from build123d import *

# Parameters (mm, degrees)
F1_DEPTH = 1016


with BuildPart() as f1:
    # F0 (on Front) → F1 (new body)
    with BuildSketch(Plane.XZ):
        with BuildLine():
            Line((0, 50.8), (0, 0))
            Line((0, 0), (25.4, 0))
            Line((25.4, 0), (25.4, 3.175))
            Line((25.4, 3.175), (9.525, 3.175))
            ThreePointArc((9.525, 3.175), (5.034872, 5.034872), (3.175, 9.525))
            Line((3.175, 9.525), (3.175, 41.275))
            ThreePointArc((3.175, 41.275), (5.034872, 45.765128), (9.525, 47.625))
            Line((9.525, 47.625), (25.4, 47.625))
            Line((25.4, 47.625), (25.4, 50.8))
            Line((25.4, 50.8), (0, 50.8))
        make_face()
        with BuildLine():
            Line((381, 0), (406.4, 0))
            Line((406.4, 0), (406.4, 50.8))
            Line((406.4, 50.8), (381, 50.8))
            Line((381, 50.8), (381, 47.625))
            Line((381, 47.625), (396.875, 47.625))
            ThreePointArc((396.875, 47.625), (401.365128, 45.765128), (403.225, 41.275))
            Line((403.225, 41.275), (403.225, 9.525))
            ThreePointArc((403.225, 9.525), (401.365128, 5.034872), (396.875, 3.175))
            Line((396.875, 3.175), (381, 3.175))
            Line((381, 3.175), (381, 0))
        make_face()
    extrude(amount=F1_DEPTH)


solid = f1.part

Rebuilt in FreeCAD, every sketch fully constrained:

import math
import FreeCAD as App
import Part
import Sketcher

V = App.Vector
Q = App.Units.Quantity

doc = App.newDocument("Part")
body = doc.addObject("PartDesign::Body", "Body")
body.AllowCompound = True

# Sketch on XZ plane
sketch1 = doc.addObject("Sketcher::SketchObject", "Sketch")
body.addObject(sketch1)
sketch1.AttachmentSupport = (doc.XZ_Plane, [""])
sketch1.MapMode = "FlatFace"
sketch1.addGeometry([
    Part.LineSegment(V(0, 50.8, 0), V(0, 0, 0)),  # 0
    Part.LineSegment(V(0, 0, 0), V(25.4, 0, 0)),  # 1
    Part.LineSegment(V(25.4, 0, 0), V(25.4, 3.2, 0)),  # 2
    Part.LineSegment(V(25.4, 3.2, 0), V(9.5, 3.2, 0)),  # 3
    Part.ArcOfCircle(Part.Circle(V(9.5, 9.5, 0), V(0, 0, 1), 6.4), math.radians(-180), math.radians(-90)),  # 4
    Part.LineSegment(V(3.2, 9.5, 0), V(3.2, 41.3, 0)),  # 5
    Part.ArcOfCircle(Part.Circle(V(9.5, 41.3, 0), V(0, 0, 1), 6.4), math.radians(90), math.radians(180)),  # 6
    Part.LineSegment(V(9.5, 47.6, 0), V(25.4, 47.6, 0)),  # 7
    Part.LineSegment(V(25.4, 47.6, 0), V(25.4, 50.8, 0)),  # 8
    Part.LineSegment(V(25.4, 50.8, 0), V(0, 50.8, 0)),  # 9
    Part.LineSegment(V(381, 0, 0), V(406.4, 0, 0)),  # 10
    Part.LineSegment(V(406.4, 0, 0), V(406.4, 50.8, 0)),  # 11
    Part.LineSegment(V(406.4, 50.8, 0), V(381, 50.8, 0)),  # 12
    Part.LineSegment(V(381, 50.8, 0), V(381, 47.6, 0)),  # 13
    Part.LineSegment(V(381, 47.6, 0), V(396.9, 47.6, 0)),  # 14
    Part.ArcOfCircle(Part.Circle(V(396.9, 41.3, 0), V(0, 0, 1), 6.4), math.radians(0), math.radians(90)),  # 15
    Part.LineSegment(V(403.2, 41.3, 0), V(403.2, 9.5, 0)),  # 16
    Part.ArcOfCircle(Part.Circle(V(396.9, 9.5, 0), V(0, 0, 1), 6.4), math.radians(-90), math.radians(0)),  # 17
    Part.LineSegment(V(396.9, 3.2, 0), V(381, 3.2, 0)),  # 18
    Part.LineSegment(V(381, 3.2, 0), V(381, 0, 0)),  # 19
], False)
sketch1.addConstraint([
    Sketcher.Constraint("Coincident", 0, 2, 1, 1),
    Sketcher.Constraint("Coincident", 1, 2, 2, 1),
    Sketcher.Constraint("Coincident", 2, 2, 3, 1),
    Sketcher.Constraint("Tangent", 3, 2, 4, 2),
    Sketcher.Constraint("Tangent", 4, 1, 5, 1),
    Sketcher.Constraint("Tangent", 5, 2, 6, 2),
    Sketcher.Constraint("Tangent", 6, 1, 7, 1),
    Sketcher.Constraint("Coincident", 7, 2, 8, 1),
    Sketcher.Constraint("Coincident", 8, 2, 9, 1),
    Sketcher.Constraint("Coincident", 9, 2, 0, 1),
    Sketcher.Constraint("Coincident", 10, 2, 11, 1),
    Sketcher.Constraint("Coincident", 11, 2, 12, 1),
    Sketcher.Constraint("Coincident", 12, 2, 13, 1),
    Sketcher.Constraint("Coincident", 13, 2, 14, 1),
    Sketcher.Constraint("Tangent", 14, 2, 15, 2),
    Sketcher.Constraint("Tangent", 15, 1, 16, 1),
    Sketcher.Constraint("Tangent", 16, 2, 17, 2),
    Sketcher.Constraint("Tangent", 17, 1, 18, 1),
    Sketcher.Constraint("Coincident", 18, 2, 19, 1),
    Sketcher.Constraint("Coincident", 19, 2, 10, 1),
    Sketcher.Constraint("Vertical", 0),
    Sketcher.Constraint("Horizontal", 1),
    Sketcher.Constraint("Vertical", 2),
    Sketcher.Constraint("Horizontal", 3),
    Sketcher.Constraint("Vertical", 5),
    Sketcher.Constraint("Horizontal", 7),
    Sketcher.Constraint("Vertical", 8),
    Sketcher.Constraint("Horizontal", 9),
    Sketcher.Constraint("Horizontal", 10),
    Sketcher.Constraint("Vertical", 11),
    Sketcher.Constraint("Horizontal", 12),
    Sketcher.Constraint("Vertical", 13),
    Sketcher.Constraint("Horizontal", 14),
    Sketcher.Constraint("Vertical", 16),
    Sketcher.Constraint("Horizontal", 18),
    Sketcher.Constraint("Vertical", 19),
    Sketcher.Constraint("Coincident", 0, 2, -1, 1),
    Sketcher.Constraint("Equal", 4, 6),
    Sketcher.Constraint("Equal", 6, 15),
    Sketcher.Constraint("Equal", 15, 17),
    Sketcher.Constraint("PointOnObject", 10, 2, -1),
    Sketcher.Constraint("Horizontal", 6, 3, 15, 3),
    Sketcher.Constraint("Horizontal", 4, 3, 17, 3),
    Sketcher.Constraint("Horizontal", 9, 2, 11, 2),
    Sketcher.Constraint("Vertical", 2, 2, 7, 2),
    Sketcher.Constraint("Vertical", 13, 2, 18, 2),
    Sketcher.Constraint("Equal", 9, 10),
    Sketcher.Constraint("Equal", 7, 14),
    Sketcher.Constraint("Equal", 2, 8),
    Sketcher.Constraint("DistanceX", 1, 1, 1, 2, Q("1 in")),
    Sketcher.Constraint("DistanceY", 0, 2, 0, 1, Q("2 in")),
    Sketcher.Constraint("Radius", 4, Q("0.25 in")),
    Sketcher.Constraint("DistanceX", -1, 1, 10, 2, Q("16 in")),
    Sketcher.Constraint("DistanceY", 5, 1, 5, 2, Q("1.25 in")),
    Sketcher.Constraint("DistanceX", 3, 2, 3, 1, Q("0.625 in")),
])
pad1 = doc.addObject("PartDesign::Pad", "Pad")
body.addObject(pad1)
pad1.Profile = sketch1
pad1.Length = Q("40 in")

doc.recompute()
